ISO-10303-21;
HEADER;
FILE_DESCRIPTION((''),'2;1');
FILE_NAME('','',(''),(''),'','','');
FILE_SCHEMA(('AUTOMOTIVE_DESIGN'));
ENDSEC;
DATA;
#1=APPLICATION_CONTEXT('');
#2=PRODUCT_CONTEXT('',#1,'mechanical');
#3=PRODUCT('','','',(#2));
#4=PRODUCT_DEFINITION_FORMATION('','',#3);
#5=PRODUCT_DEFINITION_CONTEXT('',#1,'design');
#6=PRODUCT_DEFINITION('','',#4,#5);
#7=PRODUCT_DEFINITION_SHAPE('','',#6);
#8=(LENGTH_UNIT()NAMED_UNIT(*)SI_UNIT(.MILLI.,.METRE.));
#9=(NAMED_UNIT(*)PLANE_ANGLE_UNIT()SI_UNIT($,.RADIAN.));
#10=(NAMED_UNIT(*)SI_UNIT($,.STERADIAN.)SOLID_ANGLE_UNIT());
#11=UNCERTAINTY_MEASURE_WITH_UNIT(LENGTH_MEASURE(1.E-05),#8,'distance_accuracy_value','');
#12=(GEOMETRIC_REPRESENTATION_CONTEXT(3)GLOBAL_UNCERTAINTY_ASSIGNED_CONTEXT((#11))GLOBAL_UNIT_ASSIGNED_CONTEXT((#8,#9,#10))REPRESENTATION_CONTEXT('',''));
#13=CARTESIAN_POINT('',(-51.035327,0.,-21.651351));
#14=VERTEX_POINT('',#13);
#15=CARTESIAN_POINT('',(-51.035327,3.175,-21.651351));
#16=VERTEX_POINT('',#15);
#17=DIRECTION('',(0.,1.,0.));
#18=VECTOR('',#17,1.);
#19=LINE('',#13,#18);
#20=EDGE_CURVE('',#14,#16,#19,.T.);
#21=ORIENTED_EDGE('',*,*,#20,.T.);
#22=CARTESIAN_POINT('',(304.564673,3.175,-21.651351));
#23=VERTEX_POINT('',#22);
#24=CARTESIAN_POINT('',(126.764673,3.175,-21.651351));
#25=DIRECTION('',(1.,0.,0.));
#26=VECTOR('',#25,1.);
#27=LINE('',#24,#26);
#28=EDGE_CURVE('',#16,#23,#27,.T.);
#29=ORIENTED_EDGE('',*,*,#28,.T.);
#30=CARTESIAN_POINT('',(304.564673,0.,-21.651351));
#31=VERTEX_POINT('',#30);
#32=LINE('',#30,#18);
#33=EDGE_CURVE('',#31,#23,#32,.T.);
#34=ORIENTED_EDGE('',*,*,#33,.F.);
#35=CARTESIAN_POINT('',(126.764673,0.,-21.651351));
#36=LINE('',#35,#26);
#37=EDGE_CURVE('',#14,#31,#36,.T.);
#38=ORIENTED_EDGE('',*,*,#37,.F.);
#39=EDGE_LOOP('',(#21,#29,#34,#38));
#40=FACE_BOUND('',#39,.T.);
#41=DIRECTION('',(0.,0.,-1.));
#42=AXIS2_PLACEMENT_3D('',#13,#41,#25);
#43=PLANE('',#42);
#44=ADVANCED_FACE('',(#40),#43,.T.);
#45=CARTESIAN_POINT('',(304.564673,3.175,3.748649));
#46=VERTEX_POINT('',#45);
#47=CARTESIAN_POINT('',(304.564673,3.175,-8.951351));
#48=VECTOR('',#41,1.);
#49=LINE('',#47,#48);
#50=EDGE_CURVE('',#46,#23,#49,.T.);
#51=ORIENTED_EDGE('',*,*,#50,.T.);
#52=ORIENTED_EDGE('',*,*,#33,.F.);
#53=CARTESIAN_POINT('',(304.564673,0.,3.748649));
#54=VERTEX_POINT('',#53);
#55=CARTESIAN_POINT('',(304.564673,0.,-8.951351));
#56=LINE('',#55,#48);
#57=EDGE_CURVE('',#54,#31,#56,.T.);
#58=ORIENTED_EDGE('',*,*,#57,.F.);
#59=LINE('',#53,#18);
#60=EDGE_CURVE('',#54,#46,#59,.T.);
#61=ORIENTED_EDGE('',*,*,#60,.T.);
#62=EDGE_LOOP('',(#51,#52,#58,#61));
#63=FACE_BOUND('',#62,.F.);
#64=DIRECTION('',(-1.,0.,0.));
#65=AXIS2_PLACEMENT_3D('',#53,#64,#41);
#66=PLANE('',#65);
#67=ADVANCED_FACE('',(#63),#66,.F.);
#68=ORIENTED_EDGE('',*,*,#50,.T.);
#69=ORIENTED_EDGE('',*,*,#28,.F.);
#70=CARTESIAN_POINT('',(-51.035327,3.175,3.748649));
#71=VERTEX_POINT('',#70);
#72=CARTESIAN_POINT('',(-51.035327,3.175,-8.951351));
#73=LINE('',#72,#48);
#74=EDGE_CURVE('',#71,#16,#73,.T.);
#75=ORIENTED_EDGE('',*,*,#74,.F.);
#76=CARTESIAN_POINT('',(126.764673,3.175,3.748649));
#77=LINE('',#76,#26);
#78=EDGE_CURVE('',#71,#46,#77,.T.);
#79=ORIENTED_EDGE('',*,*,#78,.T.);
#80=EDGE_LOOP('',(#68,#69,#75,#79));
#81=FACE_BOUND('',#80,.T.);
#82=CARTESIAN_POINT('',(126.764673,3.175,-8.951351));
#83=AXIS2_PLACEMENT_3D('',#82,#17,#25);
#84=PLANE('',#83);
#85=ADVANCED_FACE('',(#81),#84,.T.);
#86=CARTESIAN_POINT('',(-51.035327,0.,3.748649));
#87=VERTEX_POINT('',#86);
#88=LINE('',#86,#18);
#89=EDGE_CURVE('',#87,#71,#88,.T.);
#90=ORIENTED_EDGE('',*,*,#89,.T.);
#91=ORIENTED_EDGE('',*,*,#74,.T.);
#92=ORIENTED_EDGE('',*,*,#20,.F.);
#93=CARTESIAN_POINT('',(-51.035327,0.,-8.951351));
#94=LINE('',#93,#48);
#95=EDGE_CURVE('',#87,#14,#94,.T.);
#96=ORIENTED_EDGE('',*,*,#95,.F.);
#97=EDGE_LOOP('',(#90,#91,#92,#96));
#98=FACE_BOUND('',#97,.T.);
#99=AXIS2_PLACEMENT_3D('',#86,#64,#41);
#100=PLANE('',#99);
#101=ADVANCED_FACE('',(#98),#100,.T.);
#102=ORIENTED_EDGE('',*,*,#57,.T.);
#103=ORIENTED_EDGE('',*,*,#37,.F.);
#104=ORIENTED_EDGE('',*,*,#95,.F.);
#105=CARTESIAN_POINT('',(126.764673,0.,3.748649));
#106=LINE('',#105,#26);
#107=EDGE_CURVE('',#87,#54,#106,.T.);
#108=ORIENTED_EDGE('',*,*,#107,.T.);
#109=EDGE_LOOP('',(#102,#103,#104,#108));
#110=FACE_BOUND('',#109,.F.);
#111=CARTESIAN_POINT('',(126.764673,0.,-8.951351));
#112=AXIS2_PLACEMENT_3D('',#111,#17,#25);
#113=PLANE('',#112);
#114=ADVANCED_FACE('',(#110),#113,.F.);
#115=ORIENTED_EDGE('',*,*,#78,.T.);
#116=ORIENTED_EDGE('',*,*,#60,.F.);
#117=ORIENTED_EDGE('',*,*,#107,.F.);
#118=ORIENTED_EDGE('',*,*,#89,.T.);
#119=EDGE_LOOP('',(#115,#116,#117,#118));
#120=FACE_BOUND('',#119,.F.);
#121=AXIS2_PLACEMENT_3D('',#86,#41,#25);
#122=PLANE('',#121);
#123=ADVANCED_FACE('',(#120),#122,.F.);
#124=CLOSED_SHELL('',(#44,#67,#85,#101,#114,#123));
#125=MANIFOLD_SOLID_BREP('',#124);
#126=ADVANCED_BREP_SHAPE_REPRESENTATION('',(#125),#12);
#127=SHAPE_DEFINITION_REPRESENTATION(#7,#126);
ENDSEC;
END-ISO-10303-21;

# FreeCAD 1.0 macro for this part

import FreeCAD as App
import Part
import Sketcher
from FreeCAD import Vector
Q = App.Units.Quantity


def add_polygon(sketch, points):
    """Adds a closed chain of lines whose ends are joined by coincident constraints."""
    first, n = sketch.GeometryCount, len(points)
    for a, b in zip(points, points[1:] + points[:1]):
        sketch.addGeometry(Part.LineSegment(App.Vector(*a, 0), App.Vector(*b, 0)), False)
    for i in range(n):
        sketch.addConstraint(Sketcher.Constraint("Coincident", first + i, 2, first + (i + 1) % n, 1))

doc = App.newDocument("Part")
body = doc.addObject("PartDesign::Body", "Body")

# Sketch on XZ plane
sketch1 = doc.addObject("Sketcher::SketchObject", "Sketch")
body.addObject(sketch1)
sketch1.AttachmentSupport = (doc.XZ_Plane, [""])
sketch1.MapMode = "FlatFace"
add_polygon(sketch1, [(-51, -22), (-51, 4), (305, 4), (305, -22)])  # lines 0-3
sketch1.addConstraint([
    Sketcher.Constraint("Vertical", 0),
    Sketcher.Constraint("Horizontal", 1),
    Sketcher.Constraint("Vertical", 2),
    Sketcher.Constraint("Horizontal", 3),
    Sketcher.Constraint("DistanceX", 1, 1, 1, 2, Q("14 in")),
    Sketcher.Constraint("DistanceY", 0, 1, 0, 2, Q("1 in")),
    Sketcher.Constraint("DistanceY", -1, 1, 0, 2, Q("3.748649 mm")),
    Sketcher.Constraint("DistanceX", 0, 2, -1, 1, Q("51.035327 mm")),
])
pad1 = doc.addObject("PartDesign::Pad", "Pad")
body.addObject(pad1)
pad1.Profile = sketch1
pad1.Length = Q("0.125 in")
pad1.Reversed = True

doc.recompute()
